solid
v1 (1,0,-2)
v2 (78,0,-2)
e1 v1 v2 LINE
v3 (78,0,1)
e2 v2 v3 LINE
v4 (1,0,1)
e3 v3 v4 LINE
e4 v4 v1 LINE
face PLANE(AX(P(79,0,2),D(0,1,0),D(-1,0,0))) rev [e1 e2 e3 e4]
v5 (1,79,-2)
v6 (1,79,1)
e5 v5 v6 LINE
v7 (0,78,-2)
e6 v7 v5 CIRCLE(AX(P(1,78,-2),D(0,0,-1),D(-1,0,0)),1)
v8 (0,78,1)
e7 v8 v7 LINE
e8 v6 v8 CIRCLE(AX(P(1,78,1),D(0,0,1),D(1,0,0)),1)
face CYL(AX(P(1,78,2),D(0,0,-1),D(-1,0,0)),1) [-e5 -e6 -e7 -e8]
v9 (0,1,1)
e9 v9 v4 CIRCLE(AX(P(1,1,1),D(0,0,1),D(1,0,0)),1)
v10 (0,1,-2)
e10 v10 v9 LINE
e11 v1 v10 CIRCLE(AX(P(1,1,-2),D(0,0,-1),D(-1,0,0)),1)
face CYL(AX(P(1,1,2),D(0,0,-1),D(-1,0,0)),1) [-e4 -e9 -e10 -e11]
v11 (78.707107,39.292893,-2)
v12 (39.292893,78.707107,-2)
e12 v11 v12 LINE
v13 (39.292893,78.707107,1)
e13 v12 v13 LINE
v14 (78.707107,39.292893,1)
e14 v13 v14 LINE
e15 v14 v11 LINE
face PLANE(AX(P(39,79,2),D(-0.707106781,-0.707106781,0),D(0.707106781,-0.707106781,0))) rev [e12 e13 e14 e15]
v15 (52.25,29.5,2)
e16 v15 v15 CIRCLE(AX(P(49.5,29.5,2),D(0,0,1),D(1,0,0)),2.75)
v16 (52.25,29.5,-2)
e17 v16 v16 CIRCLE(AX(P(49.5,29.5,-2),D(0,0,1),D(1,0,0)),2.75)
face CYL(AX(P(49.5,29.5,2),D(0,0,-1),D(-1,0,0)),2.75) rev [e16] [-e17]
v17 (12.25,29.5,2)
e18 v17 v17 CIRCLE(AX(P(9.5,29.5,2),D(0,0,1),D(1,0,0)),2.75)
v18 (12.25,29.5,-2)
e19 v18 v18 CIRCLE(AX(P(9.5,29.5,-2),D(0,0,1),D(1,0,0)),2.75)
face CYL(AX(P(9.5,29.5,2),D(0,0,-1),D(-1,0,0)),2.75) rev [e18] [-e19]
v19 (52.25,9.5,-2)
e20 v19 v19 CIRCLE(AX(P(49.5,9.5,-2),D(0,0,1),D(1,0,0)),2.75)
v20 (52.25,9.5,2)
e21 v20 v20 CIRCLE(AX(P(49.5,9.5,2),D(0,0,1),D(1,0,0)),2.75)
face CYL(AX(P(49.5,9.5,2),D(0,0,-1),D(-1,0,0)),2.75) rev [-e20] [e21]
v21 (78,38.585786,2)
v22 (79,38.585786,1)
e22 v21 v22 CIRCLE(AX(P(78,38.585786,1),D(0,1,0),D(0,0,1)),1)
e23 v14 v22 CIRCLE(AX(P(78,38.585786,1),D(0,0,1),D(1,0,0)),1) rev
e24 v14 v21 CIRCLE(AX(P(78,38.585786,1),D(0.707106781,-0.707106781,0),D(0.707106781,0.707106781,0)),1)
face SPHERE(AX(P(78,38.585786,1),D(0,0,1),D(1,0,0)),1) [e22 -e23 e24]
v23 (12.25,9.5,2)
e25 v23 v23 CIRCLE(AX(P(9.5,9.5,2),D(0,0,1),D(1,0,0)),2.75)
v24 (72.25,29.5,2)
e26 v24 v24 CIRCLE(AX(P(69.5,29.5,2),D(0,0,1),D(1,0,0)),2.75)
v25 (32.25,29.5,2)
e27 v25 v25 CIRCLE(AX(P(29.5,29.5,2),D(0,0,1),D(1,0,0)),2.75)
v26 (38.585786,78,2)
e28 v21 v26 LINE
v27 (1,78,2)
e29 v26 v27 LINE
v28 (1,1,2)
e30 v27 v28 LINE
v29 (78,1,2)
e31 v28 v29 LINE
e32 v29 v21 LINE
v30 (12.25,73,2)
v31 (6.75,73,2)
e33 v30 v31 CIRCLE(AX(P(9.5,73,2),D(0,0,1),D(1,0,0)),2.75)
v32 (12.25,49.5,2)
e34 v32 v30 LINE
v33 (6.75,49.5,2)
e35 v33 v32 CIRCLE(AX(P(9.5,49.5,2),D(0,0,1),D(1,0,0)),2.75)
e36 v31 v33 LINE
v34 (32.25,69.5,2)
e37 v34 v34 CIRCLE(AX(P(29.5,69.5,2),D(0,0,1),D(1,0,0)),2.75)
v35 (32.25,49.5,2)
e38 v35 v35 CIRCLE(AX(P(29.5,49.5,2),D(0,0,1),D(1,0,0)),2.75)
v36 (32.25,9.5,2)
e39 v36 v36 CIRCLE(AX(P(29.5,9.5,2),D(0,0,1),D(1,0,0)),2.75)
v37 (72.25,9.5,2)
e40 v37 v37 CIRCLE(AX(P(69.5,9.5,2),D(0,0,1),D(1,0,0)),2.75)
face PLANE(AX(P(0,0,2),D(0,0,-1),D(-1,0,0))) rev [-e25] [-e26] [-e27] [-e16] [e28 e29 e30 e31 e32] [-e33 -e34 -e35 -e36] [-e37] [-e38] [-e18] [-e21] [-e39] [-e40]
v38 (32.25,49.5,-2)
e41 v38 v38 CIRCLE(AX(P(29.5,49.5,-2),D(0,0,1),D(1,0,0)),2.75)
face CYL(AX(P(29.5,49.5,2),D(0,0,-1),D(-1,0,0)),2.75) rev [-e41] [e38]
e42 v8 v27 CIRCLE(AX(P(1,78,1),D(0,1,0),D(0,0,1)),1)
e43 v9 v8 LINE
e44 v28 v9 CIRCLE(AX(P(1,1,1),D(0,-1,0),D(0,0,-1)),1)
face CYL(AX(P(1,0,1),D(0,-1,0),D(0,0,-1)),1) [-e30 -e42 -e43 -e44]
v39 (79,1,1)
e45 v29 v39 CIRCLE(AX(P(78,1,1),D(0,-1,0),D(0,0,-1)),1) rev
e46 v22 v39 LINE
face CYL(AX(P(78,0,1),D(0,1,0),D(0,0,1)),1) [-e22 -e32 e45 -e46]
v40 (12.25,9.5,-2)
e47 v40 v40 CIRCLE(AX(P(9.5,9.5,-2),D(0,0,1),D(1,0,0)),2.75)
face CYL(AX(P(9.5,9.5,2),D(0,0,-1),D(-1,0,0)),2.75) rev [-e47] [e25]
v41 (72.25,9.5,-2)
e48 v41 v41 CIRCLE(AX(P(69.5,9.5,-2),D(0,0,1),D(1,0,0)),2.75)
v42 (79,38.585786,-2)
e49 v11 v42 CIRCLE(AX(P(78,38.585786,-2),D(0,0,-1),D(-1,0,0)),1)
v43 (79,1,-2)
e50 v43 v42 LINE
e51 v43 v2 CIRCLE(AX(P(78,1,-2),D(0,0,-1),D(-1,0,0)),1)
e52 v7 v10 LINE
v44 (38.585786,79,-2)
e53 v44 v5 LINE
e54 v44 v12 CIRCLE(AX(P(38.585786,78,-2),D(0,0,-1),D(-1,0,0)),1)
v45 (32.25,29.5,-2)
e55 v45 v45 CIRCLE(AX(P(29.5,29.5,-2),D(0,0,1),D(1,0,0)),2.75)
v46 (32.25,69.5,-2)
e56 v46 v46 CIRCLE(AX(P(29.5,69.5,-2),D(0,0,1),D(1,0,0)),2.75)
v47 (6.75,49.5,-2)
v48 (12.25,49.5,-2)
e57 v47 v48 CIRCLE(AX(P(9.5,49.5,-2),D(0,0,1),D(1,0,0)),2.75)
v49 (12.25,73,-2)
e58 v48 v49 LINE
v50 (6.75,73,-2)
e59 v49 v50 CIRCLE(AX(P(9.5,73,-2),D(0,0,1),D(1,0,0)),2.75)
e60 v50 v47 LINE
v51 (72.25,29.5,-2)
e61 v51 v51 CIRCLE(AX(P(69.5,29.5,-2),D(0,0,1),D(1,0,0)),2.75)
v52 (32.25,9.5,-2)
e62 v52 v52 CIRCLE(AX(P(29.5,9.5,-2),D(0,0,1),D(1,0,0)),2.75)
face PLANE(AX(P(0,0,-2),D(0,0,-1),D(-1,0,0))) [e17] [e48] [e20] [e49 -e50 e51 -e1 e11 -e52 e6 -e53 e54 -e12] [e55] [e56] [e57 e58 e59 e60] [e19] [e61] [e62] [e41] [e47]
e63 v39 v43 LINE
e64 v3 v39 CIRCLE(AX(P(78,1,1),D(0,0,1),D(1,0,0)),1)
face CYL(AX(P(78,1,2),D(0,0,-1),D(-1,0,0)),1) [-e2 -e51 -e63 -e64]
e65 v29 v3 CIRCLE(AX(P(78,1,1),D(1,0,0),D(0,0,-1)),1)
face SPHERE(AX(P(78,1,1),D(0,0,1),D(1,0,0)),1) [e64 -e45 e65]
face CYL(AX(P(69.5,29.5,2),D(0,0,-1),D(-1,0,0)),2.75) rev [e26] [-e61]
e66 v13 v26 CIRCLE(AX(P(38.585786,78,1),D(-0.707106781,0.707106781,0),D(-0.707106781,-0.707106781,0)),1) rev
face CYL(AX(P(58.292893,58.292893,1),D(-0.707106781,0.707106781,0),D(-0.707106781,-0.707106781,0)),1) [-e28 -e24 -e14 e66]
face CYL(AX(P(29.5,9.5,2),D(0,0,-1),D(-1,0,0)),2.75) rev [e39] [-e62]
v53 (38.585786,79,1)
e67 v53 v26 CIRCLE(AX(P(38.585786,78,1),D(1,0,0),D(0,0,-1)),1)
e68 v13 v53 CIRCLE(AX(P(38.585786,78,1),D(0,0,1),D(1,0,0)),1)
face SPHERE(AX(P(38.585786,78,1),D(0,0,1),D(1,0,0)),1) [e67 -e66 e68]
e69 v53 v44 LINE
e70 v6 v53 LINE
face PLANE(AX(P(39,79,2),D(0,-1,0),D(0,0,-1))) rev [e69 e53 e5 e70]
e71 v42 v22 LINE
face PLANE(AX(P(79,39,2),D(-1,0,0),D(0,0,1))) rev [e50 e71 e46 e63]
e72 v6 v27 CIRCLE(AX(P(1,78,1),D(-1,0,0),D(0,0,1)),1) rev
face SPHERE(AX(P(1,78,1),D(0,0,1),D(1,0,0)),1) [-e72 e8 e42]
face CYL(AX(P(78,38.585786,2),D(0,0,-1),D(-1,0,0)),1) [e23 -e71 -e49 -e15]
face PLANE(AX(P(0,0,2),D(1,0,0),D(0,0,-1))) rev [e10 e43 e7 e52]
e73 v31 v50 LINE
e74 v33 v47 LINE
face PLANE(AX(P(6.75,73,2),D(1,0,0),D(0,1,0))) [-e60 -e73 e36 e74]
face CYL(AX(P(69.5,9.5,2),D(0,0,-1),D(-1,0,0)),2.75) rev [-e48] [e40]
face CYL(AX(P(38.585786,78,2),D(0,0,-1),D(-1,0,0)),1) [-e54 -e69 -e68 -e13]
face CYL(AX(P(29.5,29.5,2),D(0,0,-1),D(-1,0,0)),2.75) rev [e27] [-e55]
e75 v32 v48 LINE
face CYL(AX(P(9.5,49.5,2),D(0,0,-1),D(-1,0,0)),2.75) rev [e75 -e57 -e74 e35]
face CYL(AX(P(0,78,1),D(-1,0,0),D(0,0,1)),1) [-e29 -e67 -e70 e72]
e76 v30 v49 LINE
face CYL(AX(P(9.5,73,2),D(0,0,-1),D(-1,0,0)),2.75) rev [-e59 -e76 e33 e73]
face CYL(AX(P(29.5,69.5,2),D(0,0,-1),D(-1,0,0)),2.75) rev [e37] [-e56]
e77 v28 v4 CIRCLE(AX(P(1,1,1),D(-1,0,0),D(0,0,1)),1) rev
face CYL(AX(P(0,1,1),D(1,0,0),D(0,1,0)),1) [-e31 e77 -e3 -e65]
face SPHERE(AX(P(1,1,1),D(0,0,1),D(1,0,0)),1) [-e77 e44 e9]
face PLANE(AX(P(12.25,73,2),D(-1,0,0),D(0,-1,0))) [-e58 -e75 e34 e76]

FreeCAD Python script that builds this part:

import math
import FreeCAD as App
import Part
import Sketcher


def edges_at(feature, points):
    """Names of the edges that pass closest to the given points."""
    edges = feature.Shape.Edges
    near = lambda p: min(range(len(edges)), key=lambda i: edges[i].distToShape(Part.Vertex(*p))[0])
    return sorted({f"Edge{near(p) + 1}" for p in points})

doc = App.newDocument("Part")
params = doc.addObject("Spreadsheet::Sheet", "Params")
for row, (alias, value) in enumerate([
    ("sketch1_diameter", "5.5 mm"),
    ("sketch1_width", "79 mm"),
    ("sketch1_width2", "39 mm"),
    ("sketch1_height", "23.5 mm"),
    ("pad1_length", "4 mm"),
    ("fillet_radius", "1 mm"),
], start=1):
    params.set(f"A{row}", alias)
    params.set(f"B{row}", "=" + value)
    params.setAlias(f"B{row}", alias)

body = doc.addObject("PartDesign::Body", "Body")

sketch1 = doc.addObject("Sketcher::SketchObject", "Sketch")
body.addObject(sketch1)
sketch1.AttachmentSupport = (doc.XY_Plane, [""])
sketch1.MapMode = "FlatFace"
sketch1.addGeometry(Part.LineSegment(App.Vector(0, 79, 0), App.Vector(0, 0, 0)), False)
sketch1.addGeometry(Part.LineSegment(App.Vector(0, 0, 0), App.Vector(79, 0, 0)), False)
sketch1.addGeometry(Part.LineSegment(App.Vector(79, 0, 0), App.Vector(79, 39, 0)), False)
sketch1.addGeometry(Part.LineSegment(App.Vector(79, 39, 0), App.Vector(39, 79, 0)), False)
sketch1.addGeometry(Part.LineSegment(App.Vector(39, 79, 0), App.Vector(0, 79, 0)), False)
sketch1.addGeometry(Part.Circle(App.Vector(69.5, 9.5, 0), App.Vector(0, 0, 1), 2.8), False)
sketch1.addGeometry(Part.Circle(App.Vector(49.5, 9.5, 0), App.Vector(0, 0, 1), 2.8), False)
sketch1.addGeometry(Part.Circle(App.Vector(69.5, 29.5, 0), App.Vector(0, 0, 1), 2.8), False)
sketch1.addGeometry(Part.Circle(App.Vector(49.5, 29.5, 0), App.Vector(0, 0, 1), 2.8), False)
sketch1.addGeometry(Part.Circle(App.Vector(29.5, 9.5, 0), App.Vector(0, 0, 1), 2.8), False)
sketch1.addGeometry(Part.Circle(App.Vector(9.5, 9.5, 0), App.Vector(0, 0, 1), 2.8), False)
sketch1.addGeometry(Part.Circle(App.Vector(29.5, 29.5, 0), App.Vector(0, 0, 1), 2.8), False)
sketch1.addGeometry(Part.Circle(App.Vector(9.5, 29.5, 0), App.Vector(0, 0, 1), 2.8), False)
sketch1.addGeometry(Part.Circle(App.Vector(29.5, 49.5, 0), App.Vector(0, 0, 1), 2.8), False)
sketch1.addGeometry(Part.Circle(App.Vector(29.5, 69.5, 0), App.Vector(0, 0, 1), 2.8), False)
sketch1.addGeometry(Part.ArcOfCircle(Part.Circle(App.Vector(9.5, 73, 0), App.Vector(0, 0, 1), 2.8), math.radians(0), math.radians(180)), False)
sketch1.addGeometry(Part.LineSegment(App.Vector(12.2, 73, 0), App.Vector(12.2, 49.5, 0)), False)
sketch1.addGeometry(Part.ArcOfCircle(Part.Circle(App.Vector(9.5, 49.5, 0), App.Vector(0, 0, 1), 2.8), math.radians(180), math.radians(360)), False)
sketch1.addGeometry(Part.LineSegment(App.Vector(6.8, 49.5, 0), App.Vector(6.8, 73, 0)), False)
sketch1.addConstraint(Sketcher.Constraint("Coincident", 0, 2, 1, 1))
sketch1.addConstraint(Sketcher.Constraint("Coincident", 1, 2, 2, 1))
sketch1.addConstraint(Sketcher.Constraint("Coincident", 2, 2, 3, 1))
sketch1.addConstraint(Sketcher.Constraint("Coincident", 3, 2, 4, 1))
sketch1.addConstraint(Sketcher.Constraint("Coincident", 4, 2, 0, 1))
sketch1.addConstraint(Sketcher.Constraint("Tangent", 15, 1, 16, 1))
sketch1.addConstraint(Sketcher.Constraint("Tangent", 16, 2, 17, 2))
sketch1.addConstraint(Sketcher.Constraint("Tangent", 17, 1, 18, 1))
sketch1.addConstraint(Sketcher.Constraint("Tangent", 18, 2, 15, 2))
sketch1.addConstraint(Sketcher.Constraint("Vertical", 0))
sketch1.addConstraint(Sketcher.Constraint("Horizontal", 1))
sketch1.addConstraint(Sketcher.Constraint("Vertical", 2))
sketch1.addConstraint(Sketcher.Constraint("Horizontal", 4))
sketch1.addConstraint(Sketcher.Constraint("Vertical", 16))
sketch1.addConstraint(Sketcher.Constraint("Vertical", 18))
sketch1.addConstraint(Sketcher.Constraint("Coincident", 0, 2, -1, 1))
sketch1.addConstraint(Sketcher.Constraint("Equal", 5, 6))
sketch1.addConstraint(Sketcher.Constraint("Equal", 6, 7))
sketch1.addConstraint(Sketcher.Constraint("Equal", 7, 8))
sketch1.addConstraint(Sketcher.Constraint("Equal", 8, 9))
sketch1.addConstraint(Sketcher.Constraint("Equal", 9, 10))
sketch1.addConstraint(Sketcher.Constraint("Equal", 10, 11))
sketch1.addConstraint(Sketcher.Constraint("Equal", 11, 12))
sketch1.addConstraint(Sketcher.Constraint("Equal", 12, 13))
sketch1.addConstraint(Sketcher.Constraint("Equal", 13, 14))
sketch1.addConstraint(Sketcher.Constraint("Equal", 14, 15))
sketch1.addConstraint(Sketcher.Constraint("Horizontal", 5, 3, 6, 3))
sketch1.addConstraint(Sketcher.Constraint("Horizontal", 7, 3, 8, 3))
sketch1.addConstraint(Sketcher.Constraint("Horizontal", 6, 3, 9, 3))
sketch1.addConstraint(Sketcher.Constraint("Horizontal", 9, 3, 10, 3))
sketch1.addConstraint(Sketcher.Constraint("Horizontal", 8, 3, 11, 3))
sketch1.addConstraint(Sketcher.Constraint("Horizontal", 11, 3, 12, 3))
sketch1.addConstraint(Sketcher.Constraint("Horizontal", 13, 3, 17, 3))
sketch1.addConstraint(Sketcher.Constraint("Vertical", 5, 3, 7, 3))
sketch1.addConstraint(Sketcher.Constraint("Vertical", 6, 3, 8, 3))
sketch1.addConstraint(Sketcher.Constraint("Vertical", 9, 3, 11, 3))
sketch1.addConstraint(Sketcher.Constraint("Vertical", 10, 3, 12, 3))
sketch1.addConstraint(Sketcher.Constraint("Vertical", 11, 3, 13, 3))
sketch1.addConstraint(Sketcher.Constraint("Vertical", 13, 3, 14, 3))
sketch1.addConstraint(Sketcher.Constraint("Vertical", 12, 3, 15, 3))
sketch1.addConstraint(Sketcher.Constraint("Equal", 1, 0))
sketch1.addConstraint(Sketcher.Constraint("Equal", 4, 2))
sketch1.addConstraint(Sketcher.Constraint("Diameter", 5, 5.5))
sketch1.addConstraint(Sketcher.Constraint("DistanceX", 1, 1, 1, 2, 79.0))
sketch1.addConstraint(Sketcher.Constraint("DistanceX", 4, 2, 4, 1, 39.0))
sketch1.addConstraint(Sketcher.Constraint("DistanceY", 16, 2, 16, 1, 23.5))
sketch1.addConstraint(Sketcher.Constraint("DistanceY", -1, 1, 15, 3, 73.0))
sketch1.addConstraint(Sketcher.Constraint("DistanceX", 6, 3, 5, 3, 20.0))
sketch1.addConstraint(Sketcher.Constraint("DistanceY", 5, 3, 7, 3, 20.0))
sketch1.addConstraint(Sketcher.Constraint("DistanceX", 9, 3, 6, 3, 20.0))
sketch1.addConstraint(Sketcher.Constraint("DistanceX", 10, 3, 9, 3, 20.0))
sketch1.addConstraint(Sketcher.Constraint("DistanceY", 11, 3, 13, 3, 20.0))
sketch1.addConstraint(Sketcher.Constraint("DistanceY", 13, 3, 14, 3, 20.0))
sketch1.addConstraint(Sketcher.Constraint("DistanceX", -1, 1, 5, 3, 69.5))
sketch1.setExpression("Constraints[42]", "Params.sketch1_diameter")
sketch1.setExpression("Constraints[43]", "Params.sketch1_width")
sketch1.setExpression("Constraints[44]", "Params.sketch1_width2")
sketch1.setExpression("Constraints[45]", "Params.sketch1_height")
pad1 = doc.addObject("PartDesign::Pad", "Pad")
body.addObject(pad1)
pad1.Profile = sketch1
pad1.setExpression("Length", "Params.pad1_length")
pad1.Midplane = True
doc.recompute()

fillet = doc.addObject("PartDesign::Fillet", "Fillet")
body.addObject(fillet)
fillet.Base = (pad1, edges_at(pad1, [
    (59, 59, 2),
    (19.5, 79, 2),
    (0, 39.5, 2),
    (39.5, 0, 2),
    (79, 19.5, 2),
    (0, 0, 0),
    (0, 79, 0),
    (39, 79, 0),
    (79, 39, 0),
    (79, 0, 0),
]))
fillet.setExpression("Radius", "Params.fillet_radius")

doc.recompute()
